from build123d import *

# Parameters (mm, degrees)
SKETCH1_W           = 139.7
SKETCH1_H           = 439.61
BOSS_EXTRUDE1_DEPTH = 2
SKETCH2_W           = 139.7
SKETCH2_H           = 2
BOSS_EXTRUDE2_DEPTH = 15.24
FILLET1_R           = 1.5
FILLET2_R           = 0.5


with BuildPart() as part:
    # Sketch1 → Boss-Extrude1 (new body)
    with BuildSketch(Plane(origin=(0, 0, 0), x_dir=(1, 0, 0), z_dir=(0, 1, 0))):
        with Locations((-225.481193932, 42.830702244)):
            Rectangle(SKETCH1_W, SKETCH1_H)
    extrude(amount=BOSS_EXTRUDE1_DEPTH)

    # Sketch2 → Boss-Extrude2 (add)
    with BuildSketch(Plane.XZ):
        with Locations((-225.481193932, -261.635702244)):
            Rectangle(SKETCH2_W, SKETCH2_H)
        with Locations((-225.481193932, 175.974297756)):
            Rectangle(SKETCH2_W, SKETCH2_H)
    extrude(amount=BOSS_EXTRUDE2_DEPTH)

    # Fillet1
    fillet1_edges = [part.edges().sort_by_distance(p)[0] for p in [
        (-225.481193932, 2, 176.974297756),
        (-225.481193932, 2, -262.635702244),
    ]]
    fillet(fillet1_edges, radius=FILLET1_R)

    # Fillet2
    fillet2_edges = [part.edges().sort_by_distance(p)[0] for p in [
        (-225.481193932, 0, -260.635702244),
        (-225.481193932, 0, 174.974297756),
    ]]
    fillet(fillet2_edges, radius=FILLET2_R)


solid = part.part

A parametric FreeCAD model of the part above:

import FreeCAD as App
import Part
import Sketcher

V = App.Vector


def edges_at(feature, points):
    """Names of the edges that pass closest to the given points."""
    edges = feature.Shape.Edges
    near = lambda p: min(range(len(edges)), key=lambda i: edges[i].distToShape(Part.Vertex(*p))[0])
    return sorted({f"Edge{near(p) + 1}" for p in points})

doc = App.newDocument("Part")
params = doc.addObject("Spreadsheet::Sheet", "Params")
for row, (alias, value) in enumerate([
    ("sketch1_width", "139.7 mm"),
    ("sketch1_height", "439.61 mm"),
    ("pad1_length", "2 mm"),
    ("sketch2_height", "2 mm"),
    ("sketch2_width", "139.7 mm"),
    ("pad2_length", "15.24 mm"),
    ("fillet_radius", "1.5 mm"),
    ("fillet2_radius", "0.5 mm"),
], start=1):
    params.set(f"A{row}", alias)
    params.set(f"B{row}", "=" + value)
    params.setAlias(f"B{row}", alias)

body = doc.addObject("PartDesign::Body", "Body")

# Sketch on XZ plane
sketch1 = doc.addObject("Sketcher::SketchObject", "Sketch")
body.addObject(sketch1)
sketch1.AttachmentSupport = (doc.XZ_Plane, [""])
sketch1.MapMode = "FlatFace"
sketch1.addGeometry([
    Part.LineSegment(V(-295, -263, 0), V(-295, 177, 0)),
    Part.LineSegment(V(-295, 177, 0), V(-156, 177, 0)),
    Part.LineSegment(V(-156, 177, 0), V(-156, -263, 0)),
    Part.LineSegment(V(-156, -263, 0), V(-295, -263, 0)),
], False)
sketch1.addConstraint([
    Sketcher.Constraint("Coincident", 0, 2, 1, 1),
    Sketcher.Constraint("Coincident", 1, 2, 2, 1),
    Sketcher.Constraint("Coincident", 2, 2, 3, 1),
    Sketcher.Constraint("Coincident", 3, 2, 0, 1),
    Sketcher.Constraint("Vertical", 0),
    Sketcher.Constraint("Horizontal", 1),
    Sketcher.Constraint("Vertical", 2),
    Sketcher.Constraint("Horizontal", 3),
    Sketcher.Constraint("DistanceX", 1, 1, 1, 2, 139.7),
    Sketcher.Constraint("DistanceY", 0, 1, 0, 2, 439.61),
    Sketcher.Constraint("DistanceX", 0, 2, -1, 1, 295.331194),
    Sketcher.Constraint("DistanceY", -1, 1, 0, 2, 176.974298),
])
sketch1.setExpression("Constraints[8]", "Params.sketch1_width")
sketch1.setExpression("Constraints[9]", "Params.sketch1_height")
pad1 = doc.addObject("PartDesign::Pad", "Pad")
body.addObject(pad1)
pad1.Profile = sketch1
pad1.setExpression("Length", "Params.pad1_length")
pad1.Reversed = True

# Sketch on XZ plane
sketch2 = doc.addObject("Sketcher::SketchObject", "Sketch001")
body.addObject(sketch2)
sketch2.AttachmentSupport = (doc.XZ_Plane, [""])
sketch2.MapMode = "FlatFace"
sketch2.addGeometry([
    Part.LineSegment(V(-295.3, -260.6, 0), V(-295.3, -262.6, 0)),  # 0
    Part.LineSegment(V(-295.3, -262.6, 0), V(-155.6, -262.6, 0)),  # 1
    Part.LineSegment(V(-155.6, -262.6, 0), V(-155.6, -260.6, 0)),  # 2
    Part.LineSegment(V(-155.6, -260.6, 0), V(-295.3, -260.6, 0)),  # 3
    Part.LineSegment(V(-295.3, 177, 0), V(-295.3, 175, 0)),  # 4
    Part.LineSegment(V(-295.3, 175, 0), V(-155.6, 175, 0)),  # 5
    Part.LineSegment(V(-155.6, 175, 0), V(-155.6, 177, 0)),  # 6
    Part.LineSegment(V(-155.6, 177, 0), V(-295.3, 177, 0)),  # 7
], False)
sketch2.addConstraint([
    Sketcher.Constraint("Coincident", 0, 2, 1, 1),
    Sketcher.Constraint("Coincident", 1, 2, 2, 1),
    Sketcher.Constraint("Coincident", 2, 2, 3, 1),
    Sketcher.Constraint("Coincident", 3, 2, 0, 1),
    Sketcher.Constraint("Coincident", 4, 2, 5, 1),
    Sketcher.Constraint("Coincident", 5, 2, 6, 1),
    Sketcher.Constraint("Coincident", 6, 2, 7, 1),
    Sketcher.Constraint("Coincident", 7, 2, 4, 1),
    Sketcher.Constraint("Vertical", 0),
    Sketcher.Constraint("Horizontal", 1),
    Sketcher.Constraint("Vertical", 2),
    Sketcher.Constraint("Horizontal", 3),
    Sketcher.Constraint("Vertical", 4),
    Sketcher.Constraint("Horizontal", 5),
    Sketcher.Constraint("Vertical", 6),
    Sketcher.Constraint("Horizontal", 7),
    Sketcher.Constraint("Vertical", 3, 2, 4, 2),
    Sketcher.Constraint("Vertical", 2, 2, 5, 2),
    Sketcher.Constraint("Equal", 2, 4),
    Sketcher.Constraint("DistanceY", 0, 2, 0, 1, 2.0),
    Sketcher.Constraint("DistanceX", 1, 1, 1, 2, 139.7),
    Sketcher.Constraint("DistanceY", 3, 2, 4, 2, 435.61),
    Sketcher.Constraint("DistanceX", 0, 2, -1, 1, 295.331194),
    Sketcher.Constraint("DistanceY", 0, 2, -1, 1, 262.635702),
])
sketch2.setExpression("Constraints[19]", "Params.sketch2_height")
sketch2.setExpression("Constraints[20]", "Params.sketch2_width")
pad2 = doc.addObject("PartDesign::Pad", "Pad001")
body.addObject(pad2)
pad2.Profile = sketch2
pad2.setExpression("Length", "Params.pad2_length")
doc.recompute()

fillet = doc.addObject("PartDesign::Fillet", "Fillet")
body.addObject(fillet)
fillet.Base = (pad2, edges_at(pad2, [(-225.481, 2, 176.974), (-225.481, 2, -262.636)]))
fillet.setExpression("Radius", "Params.fillet_radius")
doc.recompute()

fillet2 = doc.addObject("PartDesign::Fillet", "Fillet001")
body.addObject(fillet2)
fillet2.Base = (fillet, edges_at(fillet, [(-225.481, 0, -260.636), (-225.481, 0, 174.974)]))
fillet2.setExpression("Radius", "Params.fillet2_radius")

doc.recompute()
